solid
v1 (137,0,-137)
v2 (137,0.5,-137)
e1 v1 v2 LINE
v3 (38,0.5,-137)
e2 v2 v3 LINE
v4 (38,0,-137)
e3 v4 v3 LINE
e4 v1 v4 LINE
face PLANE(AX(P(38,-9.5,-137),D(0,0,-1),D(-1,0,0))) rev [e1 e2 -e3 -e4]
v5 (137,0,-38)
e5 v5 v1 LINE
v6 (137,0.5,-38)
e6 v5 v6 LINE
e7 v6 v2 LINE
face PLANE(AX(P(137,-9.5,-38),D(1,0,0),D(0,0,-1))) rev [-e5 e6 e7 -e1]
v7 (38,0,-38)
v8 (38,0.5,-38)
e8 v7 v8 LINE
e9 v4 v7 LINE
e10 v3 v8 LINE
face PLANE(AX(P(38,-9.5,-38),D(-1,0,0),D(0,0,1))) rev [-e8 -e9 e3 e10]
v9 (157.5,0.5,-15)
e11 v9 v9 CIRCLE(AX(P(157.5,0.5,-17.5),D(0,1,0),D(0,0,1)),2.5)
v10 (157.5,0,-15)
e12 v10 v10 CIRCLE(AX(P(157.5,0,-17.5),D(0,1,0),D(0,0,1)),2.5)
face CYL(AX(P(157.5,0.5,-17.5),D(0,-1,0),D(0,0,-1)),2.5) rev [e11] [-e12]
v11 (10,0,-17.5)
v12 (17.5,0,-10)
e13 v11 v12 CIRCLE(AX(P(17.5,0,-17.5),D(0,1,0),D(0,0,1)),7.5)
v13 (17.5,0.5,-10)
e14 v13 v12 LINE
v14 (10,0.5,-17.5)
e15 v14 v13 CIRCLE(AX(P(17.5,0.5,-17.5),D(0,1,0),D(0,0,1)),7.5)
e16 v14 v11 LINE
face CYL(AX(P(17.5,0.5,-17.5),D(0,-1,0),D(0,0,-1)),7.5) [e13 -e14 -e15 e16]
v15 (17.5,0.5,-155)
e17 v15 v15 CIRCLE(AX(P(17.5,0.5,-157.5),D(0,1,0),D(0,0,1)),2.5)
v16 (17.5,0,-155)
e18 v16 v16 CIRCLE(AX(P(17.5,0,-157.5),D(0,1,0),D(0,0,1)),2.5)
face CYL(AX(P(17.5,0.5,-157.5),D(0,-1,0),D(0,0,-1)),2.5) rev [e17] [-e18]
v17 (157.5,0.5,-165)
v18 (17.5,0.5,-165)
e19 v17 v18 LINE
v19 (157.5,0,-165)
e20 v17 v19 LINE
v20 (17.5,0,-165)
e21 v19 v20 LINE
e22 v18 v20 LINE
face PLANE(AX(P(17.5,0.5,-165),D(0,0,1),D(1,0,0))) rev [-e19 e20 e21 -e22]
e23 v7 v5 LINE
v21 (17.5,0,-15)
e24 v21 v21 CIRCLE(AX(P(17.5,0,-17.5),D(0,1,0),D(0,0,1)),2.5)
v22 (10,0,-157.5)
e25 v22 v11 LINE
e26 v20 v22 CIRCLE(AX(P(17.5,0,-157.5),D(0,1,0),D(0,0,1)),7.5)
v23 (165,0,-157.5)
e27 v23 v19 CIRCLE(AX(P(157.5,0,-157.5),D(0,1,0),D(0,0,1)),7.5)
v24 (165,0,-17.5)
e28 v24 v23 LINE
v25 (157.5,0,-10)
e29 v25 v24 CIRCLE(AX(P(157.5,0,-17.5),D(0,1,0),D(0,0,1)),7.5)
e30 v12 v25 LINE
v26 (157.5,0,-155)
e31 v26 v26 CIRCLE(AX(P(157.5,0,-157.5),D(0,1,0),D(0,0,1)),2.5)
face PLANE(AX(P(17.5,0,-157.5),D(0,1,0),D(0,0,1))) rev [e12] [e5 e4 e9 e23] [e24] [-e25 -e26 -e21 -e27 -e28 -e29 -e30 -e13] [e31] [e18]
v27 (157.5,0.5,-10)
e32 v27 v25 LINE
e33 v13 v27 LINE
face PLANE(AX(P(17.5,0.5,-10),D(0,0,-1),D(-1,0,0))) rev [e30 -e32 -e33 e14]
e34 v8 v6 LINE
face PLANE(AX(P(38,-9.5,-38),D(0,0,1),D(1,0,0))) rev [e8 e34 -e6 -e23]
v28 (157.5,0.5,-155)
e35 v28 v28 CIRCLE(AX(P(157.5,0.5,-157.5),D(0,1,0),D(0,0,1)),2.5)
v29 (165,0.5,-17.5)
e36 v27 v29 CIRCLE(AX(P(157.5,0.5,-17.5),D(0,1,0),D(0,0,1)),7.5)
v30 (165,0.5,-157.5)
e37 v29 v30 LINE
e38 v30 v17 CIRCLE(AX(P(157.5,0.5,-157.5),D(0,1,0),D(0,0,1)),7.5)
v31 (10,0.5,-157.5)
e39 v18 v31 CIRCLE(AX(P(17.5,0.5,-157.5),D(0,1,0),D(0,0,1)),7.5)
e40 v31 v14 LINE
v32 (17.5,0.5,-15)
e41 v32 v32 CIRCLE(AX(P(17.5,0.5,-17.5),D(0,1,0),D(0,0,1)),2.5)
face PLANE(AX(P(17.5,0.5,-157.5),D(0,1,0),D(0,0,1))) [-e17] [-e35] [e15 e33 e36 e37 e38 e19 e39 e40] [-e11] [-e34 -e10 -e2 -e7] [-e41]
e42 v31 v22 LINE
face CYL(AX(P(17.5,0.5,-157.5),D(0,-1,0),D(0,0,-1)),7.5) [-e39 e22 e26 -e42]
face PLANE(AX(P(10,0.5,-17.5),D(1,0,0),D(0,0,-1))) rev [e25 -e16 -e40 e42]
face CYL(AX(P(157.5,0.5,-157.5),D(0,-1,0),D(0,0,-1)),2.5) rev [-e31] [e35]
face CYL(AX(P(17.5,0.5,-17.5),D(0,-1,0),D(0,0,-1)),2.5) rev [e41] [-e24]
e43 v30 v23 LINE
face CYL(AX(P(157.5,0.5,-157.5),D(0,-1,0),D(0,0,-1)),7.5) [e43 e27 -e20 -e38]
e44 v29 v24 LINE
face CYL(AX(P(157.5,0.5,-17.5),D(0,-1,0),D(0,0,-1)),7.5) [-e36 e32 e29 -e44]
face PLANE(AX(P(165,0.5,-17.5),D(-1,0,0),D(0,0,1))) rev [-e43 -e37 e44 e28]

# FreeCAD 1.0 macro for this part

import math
import FreeCAD as App
import Part
import Sketcher
Q = App.Units.Quantity

doc = App.newDocument("Part")
body = doc.addObject("PartDesign::Body", "Body")

sketch1 = body.newObject("Sketcher::SketchObject", "Sketch")
sketch1.AttachmentSupport = (doc.getObject("XZ_Plane"), [""])
sketch1.MapMode = "FlatFace"
sketch1.addGeometry([
    Part.LineSegment(App.Vector(17.5, -10, 0), App.Vector(157.5, -10, 0)),
    Part.ArcOfCircle(Part.Circle(App.Vector(157.5, -17.5, 0), App.Vector(0, 0, 1), 7.5), math.radians(0), math.radians(90)),
    Part.LineSegment(App.Vector(165, -17.5, 0), App.Vector(165, -157.5, 0)),
    Part.ArcOfCircle(Part.Circle(App.Vector(157.5, -157.5, 0), App.Vector(0, 0, 1), 7.5), math.radians(-90), math.radians(0)),
    Part.LineSegment(App.Vector(157.5, -165, 0), App.Vector(17.5, -165, 0)),
    Part.ArcOfCircle(Part.Circle(App.Vector(17.5, -157.5, 0), App.Vector(0, 0, 1), 7.5), math.radians(180), math.radians(270)),
    Part.LineSegment(App.Vector(10, -157.5, 0), App.Vector(10, -17.5, 0)),
    Part.ArcOfCircle(Part.Circle(App.Vector(17.5, -17.5, 0), App.Vector(0, 0, 1), 7.5), math.radians(90), math.radians(180)),
    Part.Circle(App.Vector(17.5, -17.5, 0), App.Vector(0, 0, 1), 2.5),
    Part.Circle(App.Vector(157.5, -17.5, 0), App.Vector(0, 0, 1), 2.5),
    Part.Circle(App.Vector(17.5, -157.5, 0), App.Vector(0, 0, 1), 2.5),
    Part.Circle(App.Vector(157.5, -157.5, 0), App.Vector(0, 0, 1), 2.5),
], False)
sketch1.addConstraint([
    Sketcher.Constraint("Tangent", 0, 2, 1, 2),
    Sketcher.Constraint("Tangent", 1, 1, 2, 1),
    Sketcher.Constraint("Tangent", 2, 2, 3, 2),
    Sketcher.Constraint("Tangent", 3, 1, 4, 1),
    Sketcher.Constraint("Tangent", 4, 2, 5, 2),
    Sketcher.Constraint("Tangent", 5, 1, 6, 1),
    Sketcher.Constraint("Tangent", 6, 2, 7, 2),
    Sketcher.Constraint("Tangent", 7, 1, 0, 1),
    Sketcher.Constraint("Horizontal", 0),
    Sketcher.Constraint("Vertical", 2),
    Sketcher.Constraint("Horizontal", 4),
    Sketcher.Constraint("Vertical", 6),
    Sketcher.Constraint("Coincident", 8, 3, 7, 3),
    Sketcher.Constraint("Coincident", 9, 3, 1, 3),
    Sketcher.Constraint("Coincident", 10, 3, 5, 3),
    Sketcher.Constraint("Coincident", 11, 3, 3, 3),
    Sketcher.Constraint("Equal", 1, 3),
    Sketcher.Constraint("Equal", 3, 5),
    Sketcher.Constraint("Equal", 5, 7),
    Sketcher.Constraint("Equal", 8, 9),
    Sketcher.Constraint("Equal", 9, 10),
    Sketcher.Constraint("Equal", 10, 11),
    Sketcher.Constraint("Equal", 4, 2),
    Sketcher.Constraint("Diameter", 8, Q("5 mm")),
    Sketcher.Constraint("Radius", 1, Q("7.5 mm")),
    Sketcher.Constraint("DistanceX", 0, 1, 0, 2, Q("140 mm")),
    Sketcher.Constraint("DistanceY", 0, 2, -1, 1, Q("10 mm")),
    Sketcher.Constraint("DistanceX", -1, 1, 1, 1, Q("165 mm")),
])
pad1 = body.newObject("PartDesign::Pad", "Pad")
pad1.Profile = sketch1
pad1.Length = 0.5
pad1.Reversed = True

sketch2 = body.newObject("Sketcher::SketchObject", "Sketch001")
sketch2.AttachmentSupport = (doc.getObject("XZ_Plane"), [""])
sketch2.MapMode = "FlatFace"
sketch2.AttachmentOffset = App.Placement(App.Vector(0, 0, -0.5), App.Rotation())
sketch2.addGeometry([
    Part.LineSegment(App.Vector(38, -137, 0), App.Vector(38, -38, 0)),
    Part.LineSegment(App.Vector(38, -38, 0), App.Vector(137, -38, 0)),
    Part.LineSegment(App.Vector(137, -38, 0), App.Vector(137, -137, 0)),
    Part.LineSegment(App.Vector(137, -137, 0), App.Vector(38, -137, 0)),
], False)
sketch2.addConstraint([
    Sketcher.Constraint("Coincident", 0, 2, 1, 1),
    Sketcher.Constraint("Coincident", 1, 2, 2, 1),
    Sketcher.Constraint("Coincident", 2, 2, 3, 1),
    Sketcher.Constraint("Coincident", 3, 2, 0, 1),
    Sketcher.Constraint("Vertical", 0),
    Sketcher.Constraint("Horizontal", 1),
    Sketcher.Constraint("Vertical", 2),
    Sketcher.Constraint("Horizontal", 3),
    Sketcher.Constraint("Equal", 3, 0),
    Sketcher.Constraint("DistanceX", 1, 1, 1, 2, Q("99 mm")),
    Sketcher.Constraint("DistanceX", -1, 1, 0, 2, Q("38 mm")),
    Sketcher.Constraint("DistanceY", 0, 2, -1, 1, Q("38 mm")),
])
pocket1 = body.newObject("PartDesign::Pocket", "Pocket")
pocket1.Profile = sketch2
pocket1.Length = 10
pocket1.Reversed = True

doc.recompute()
